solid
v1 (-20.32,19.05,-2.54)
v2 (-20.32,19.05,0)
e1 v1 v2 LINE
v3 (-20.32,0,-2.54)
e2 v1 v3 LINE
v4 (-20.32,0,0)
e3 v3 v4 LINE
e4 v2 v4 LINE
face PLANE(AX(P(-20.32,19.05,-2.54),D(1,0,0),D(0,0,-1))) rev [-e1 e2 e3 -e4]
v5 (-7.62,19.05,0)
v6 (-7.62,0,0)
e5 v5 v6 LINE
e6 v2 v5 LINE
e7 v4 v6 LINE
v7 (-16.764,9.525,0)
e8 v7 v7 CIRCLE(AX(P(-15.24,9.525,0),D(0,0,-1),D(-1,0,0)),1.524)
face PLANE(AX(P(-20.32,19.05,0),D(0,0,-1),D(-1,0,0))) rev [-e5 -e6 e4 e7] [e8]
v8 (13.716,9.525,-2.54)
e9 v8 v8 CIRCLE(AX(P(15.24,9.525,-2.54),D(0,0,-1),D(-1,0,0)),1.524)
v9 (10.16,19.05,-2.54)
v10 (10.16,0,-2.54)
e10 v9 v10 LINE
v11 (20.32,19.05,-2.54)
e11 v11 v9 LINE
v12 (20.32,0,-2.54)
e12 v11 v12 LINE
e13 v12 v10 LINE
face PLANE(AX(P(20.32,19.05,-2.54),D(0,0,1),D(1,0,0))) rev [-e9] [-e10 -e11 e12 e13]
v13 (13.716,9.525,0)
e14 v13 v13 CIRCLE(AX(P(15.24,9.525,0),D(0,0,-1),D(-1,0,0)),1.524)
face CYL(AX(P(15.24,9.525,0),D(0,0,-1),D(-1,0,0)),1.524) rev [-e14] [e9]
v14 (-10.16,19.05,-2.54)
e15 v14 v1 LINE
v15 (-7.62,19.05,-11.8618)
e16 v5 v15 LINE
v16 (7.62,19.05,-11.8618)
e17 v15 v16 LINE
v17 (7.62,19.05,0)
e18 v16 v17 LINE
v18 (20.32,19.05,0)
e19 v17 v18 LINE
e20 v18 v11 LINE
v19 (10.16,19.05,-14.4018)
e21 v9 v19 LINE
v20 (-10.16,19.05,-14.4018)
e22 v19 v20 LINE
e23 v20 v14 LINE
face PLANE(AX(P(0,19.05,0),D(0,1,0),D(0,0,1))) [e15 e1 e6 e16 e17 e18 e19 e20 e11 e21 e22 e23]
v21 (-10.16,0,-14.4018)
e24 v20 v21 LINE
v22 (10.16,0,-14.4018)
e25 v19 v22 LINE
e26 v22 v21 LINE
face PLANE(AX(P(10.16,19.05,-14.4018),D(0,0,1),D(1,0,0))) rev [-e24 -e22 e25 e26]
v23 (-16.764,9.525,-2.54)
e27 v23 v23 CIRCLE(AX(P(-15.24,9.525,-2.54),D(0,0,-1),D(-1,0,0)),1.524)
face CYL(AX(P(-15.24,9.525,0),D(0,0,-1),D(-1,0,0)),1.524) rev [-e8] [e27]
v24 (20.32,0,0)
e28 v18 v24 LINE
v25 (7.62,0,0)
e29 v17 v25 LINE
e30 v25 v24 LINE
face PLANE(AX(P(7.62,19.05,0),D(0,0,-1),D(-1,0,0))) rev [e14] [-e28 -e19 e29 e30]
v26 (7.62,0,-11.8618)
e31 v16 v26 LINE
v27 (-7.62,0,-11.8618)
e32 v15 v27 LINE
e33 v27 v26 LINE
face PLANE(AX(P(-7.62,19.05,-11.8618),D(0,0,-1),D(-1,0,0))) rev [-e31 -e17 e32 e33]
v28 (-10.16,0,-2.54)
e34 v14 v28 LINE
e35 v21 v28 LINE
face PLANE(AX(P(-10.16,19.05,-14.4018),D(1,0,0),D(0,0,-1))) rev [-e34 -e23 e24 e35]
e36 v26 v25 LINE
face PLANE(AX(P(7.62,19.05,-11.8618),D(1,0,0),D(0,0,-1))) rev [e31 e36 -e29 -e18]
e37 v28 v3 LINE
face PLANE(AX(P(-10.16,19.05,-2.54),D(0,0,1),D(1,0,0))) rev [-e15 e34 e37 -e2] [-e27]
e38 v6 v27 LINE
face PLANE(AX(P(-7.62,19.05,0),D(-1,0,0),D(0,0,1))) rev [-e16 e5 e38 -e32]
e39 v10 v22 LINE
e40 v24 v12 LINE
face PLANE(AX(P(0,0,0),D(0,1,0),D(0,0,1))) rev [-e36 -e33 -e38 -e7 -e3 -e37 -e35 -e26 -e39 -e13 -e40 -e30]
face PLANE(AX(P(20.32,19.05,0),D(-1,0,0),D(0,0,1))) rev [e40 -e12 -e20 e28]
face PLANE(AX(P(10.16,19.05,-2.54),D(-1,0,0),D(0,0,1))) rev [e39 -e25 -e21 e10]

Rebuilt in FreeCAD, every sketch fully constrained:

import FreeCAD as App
import Part
import Sketcher

V = App.Vector
Q = App.Units.Quantity


def add_polygon(sketch, points):
    """Adds a closed chain of lines whose ends are joined by coincident constraints."""
    first, n = sketch.GeometryCount, len(points)
    for a, b in zip(points, points[1:] + points[:1]):
        sketch.addGeometry(Part.LineSegment(App.Vector(*a, 0), App.Vector(*b, 0)), False)
    for i in range(n):
        sketch.addConstraint(Sketcher.Constraint("Coincident", first + i, 2, first + (i + 1) % n, 1))

doc = App.newDocument("Part")
body = doc.addObject("PartDesign::Body", "Body")

sketch1 = doc.addObject("Sketcher::SketchObject", "Sketch")
body.addObject(sketch1)
sketch1.AttachmentSupport = (doc.XZ_Plane, [""])
sketch1.MapMode = "FlatFace"
add_polygon(sketch1, [(7.6, 0), (20.3, 0), (20.3, -2.5), (10.2, -2.5), (10.2, -14.4), (-10.2, -14.4), (-10.2, -2.5), (-20.3, -2.5), (-20.3, 0), (-7.6, 0), (-7.6, -11.9), (7.6, -11.9)])
sketch1.addConstraint(Sketcher.Constraint("Horizontal", 0))
sketch1.addConstraint(Sketcher.Constraint("Vertical", 1))
sketch1.addConstraint(Sketcher.Constraint("Horizontal", 2))
sketch1.addConstraint(Sketcher.Constraint("Vertical", 3))
sketch1.addConstraint(Sketcher.Constraint("Horizontal", 4))
sketch1.addConstraint(Sketcher.Constraint("Vertical", 5))
sketch1.addConstraint(Sketcher.Constraint("Horizontal", 6))
sketch1.addConstraint(Sketcher.Constraint("Vertical", 7))
sketch1.addConstraint(Sketcher.Constraint("Horizontal", 8))
sketch1.addConstraint(Sketcher.Constraint("Vertical", 9))
sketch1.addConstraint(Sketcher.Constraint("Horizontal", 10))
sketch1.addConstraint(Sketcher.Constraint("Vertical", 11))
sketch1.addConstraint(Sketcher.Constraint("Symmetric", 0, 2, 7, 2, -1, 1))
sketch1.addConstraint(Sketcher.Constraint("Symmetric", 2, 2, 5, 2, -2))
sketch1.addConstraint(Sketcher.Constraint("Symmetric", 8, 2, 11, 2, -2))
sketch1.addConstraint(Sketcher.Constraint("Equal", 5, 9))
sketch1.addConstraint(Sketcher.Constraint("DistanceX", 0, 1, 0, 2, Q("0.5 in")))
sketch1.addConstraint(Sketcher.Constraint("DistanceX", 2, 2, 2, 1, Q("0.4 in")))
sketch1.addConstraint(Sketcher.Constraint("DistanceX", 4, 2, 4, 1, Q("0.8 in")))
sketch1.addConstraint(Sketcher.Constraint("DistanceY", 1, 2, 1, 1, Q("0.1 in")))
sketch1.addConstraint(Sketcher.Constraint("DistanceY", 3, 2, 3, 1, Q("0.467 in")))
pad1 = doc.addObject("PartDesign::Pad", "Pad")
body.addObject(pad1)
pad1.Profile = sketch1
pad1.Length = Q("0.75 in")
pad1.Reversed = True

sketch2 = doc.addObject("Sketcher::SketchObject", "Sketch001")
body.addObject(sketch2)
sketch2.AttachmentSupport = (doc.XY_Plane, [""])
sketch2.MapMode = "FlatFace"
sketch2.AttachmentOffset = App.Placement(V(0, 0, -0.1 * 25.4), App.Rotation())
sketch2.addGeometry(Part.Circle(V(-15.2, 9.5, 0), V(0, 0, 1), 1.5), False)
sketch2.addGeometry(Part.Circle(V(15.2, 9.5, 0), V(0, 0, 1), 1.5), False)
sketch2.addConstraint(Sketcher.Constraint("Equal", 0, 1))
sketch2.addConstraint(Sketcher.Constraint("Symmetric", 0, 3, 1, 3, -2))
sketch2.addConstraint(Sketcher.Constraint("Diameter", 0, Q("0.12 in")))
sketch2.addConstraint(Sketcher.Constraint("DistanceX", 0, 3, -1, 1, Q("0.6 in")))
sketch2.addConstraint(Sketcher.Constraint("DistanceY", -1, 1, 0, 3, Q("0.375 in")))
pocket1 = doc.addObject("PartDesign::Pocket", "Pocket")
body.addObject(pocket1)
pocket1.Profile = sketch2
pocket1.Type = "ThroughAll"
pocket1.Reversed = True

doc.recompute()
